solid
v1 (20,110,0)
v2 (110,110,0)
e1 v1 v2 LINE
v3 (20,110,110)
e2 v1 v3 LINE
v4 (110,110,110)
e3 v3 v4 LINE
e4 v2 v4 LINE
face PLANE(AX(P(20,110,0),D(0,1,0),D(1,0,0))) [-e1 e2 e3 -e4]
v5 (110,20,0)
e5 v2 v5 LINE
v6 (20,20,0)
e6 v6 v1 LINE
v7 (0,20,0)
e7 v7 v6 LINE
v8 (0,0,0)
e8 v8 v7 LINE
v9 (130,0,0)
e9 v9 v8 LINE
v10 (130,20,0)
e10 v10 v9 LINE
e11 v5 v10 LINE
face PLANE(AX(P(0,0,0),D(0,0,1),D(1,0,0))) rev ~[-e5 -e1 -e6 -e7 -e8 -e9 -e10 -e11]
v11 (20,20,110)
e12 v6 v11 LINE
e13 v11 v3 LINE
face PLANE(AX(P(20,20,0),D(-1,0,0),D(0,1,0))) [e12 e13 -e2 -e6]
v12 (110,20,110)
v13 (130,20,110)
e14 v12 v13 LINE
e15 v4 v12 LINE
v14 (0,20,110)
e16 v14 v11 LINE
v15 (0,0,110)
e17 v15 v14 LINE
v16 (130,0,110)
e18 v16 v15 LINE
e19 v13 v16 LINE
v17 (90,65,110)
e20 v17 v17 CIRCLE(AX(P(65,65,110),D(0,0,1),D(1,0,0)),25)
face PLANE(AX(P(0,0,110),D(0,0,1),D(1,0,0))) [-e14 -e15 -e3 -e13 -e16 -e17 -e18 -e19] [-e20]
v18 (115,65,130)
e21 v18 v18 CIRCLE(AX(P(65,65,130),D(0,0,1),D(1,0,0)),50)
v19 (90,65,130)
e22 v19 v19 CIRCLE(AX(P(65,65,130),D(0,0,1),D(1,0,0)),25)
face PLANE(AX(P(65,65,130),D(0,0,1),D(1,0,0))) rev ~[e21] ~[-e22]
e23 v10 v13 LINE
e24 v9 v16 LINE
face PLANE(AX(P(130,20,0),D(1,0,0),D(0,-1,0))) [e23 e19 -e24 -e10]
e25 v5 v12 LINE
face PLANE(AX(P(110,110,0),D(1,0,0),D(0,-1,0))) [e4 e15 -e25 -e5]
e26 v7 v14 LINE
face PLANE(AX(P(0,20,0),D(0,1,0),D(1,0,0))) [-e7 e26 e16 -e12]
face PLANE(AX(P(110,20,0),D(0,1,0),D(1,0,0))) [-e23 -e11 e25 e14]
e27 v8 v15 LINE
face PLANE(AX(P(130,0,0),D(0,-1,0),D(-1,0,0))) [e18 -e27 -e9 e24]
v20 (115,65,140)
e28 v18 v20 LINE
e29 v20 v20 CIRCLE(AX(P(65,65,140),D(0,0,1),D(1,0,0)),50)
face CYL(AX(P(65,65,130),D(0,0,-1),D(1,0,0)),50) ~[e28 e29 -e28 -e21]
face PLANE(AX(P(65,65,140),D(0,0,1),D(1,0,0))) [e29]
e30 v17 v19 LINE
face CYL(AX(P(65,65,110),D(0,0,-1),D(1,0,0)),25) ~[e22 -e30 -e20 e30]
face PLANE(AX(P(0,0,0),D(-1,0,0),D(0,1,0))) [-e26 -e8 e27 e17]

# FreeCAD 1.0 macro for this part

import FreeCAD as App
import Part
import Sketcher
Q = App.Units.Quantity

doc = App.newDocument("Part")
body = doc.addObject("PartDesign::Body", "Body")

# Sketch on XY plane
sketch1 = body.newObject("Sketcher::SketchObject", "Sketch")
sketch1.AttachmentSupport = (doc.getObject("XY_Plane"), [""])
sketch1.MapMode = "FlatFace"
sketch1.addGeometry([
    Part.LineSegment(App.Vector(0, 20, 0), App.Vector(0, 0, 0)),  # 0
    Part.LineSegment(App.Vector(0, 0, 0), App.Vector(130, 0, 0)),  # 1
    Part.LineSegment(App.Vector(130, 0, 0), App.Vector(130, 20, 0)),  # 2
    Part.LineSegment(App.Vector(130, 20, 0), App.Vector(110, 20, 0)),  # 3
    Part.LineSegment(App.Vector(110, 20, 0), App.Vector(110, 110, 0)),  # 4
    Part.LineSegment(App.Vector(110, 110, 0), App.Vector(20, 110, 0)),  # 5
    Part.LineSegment(App.Vector(20, 110, 0), App.Vector(20, 20, 0)),  # 6
    Part.LineSegment(App.Vector(20, 20, 0), App.Vector(0, 20, 0)),  # 7
], False)
sketch1.addConstraint([
    Sketcher.Constraint("Coincident", 0, 2, 1, 1),
    Sketcher.Constraint("Coincident", 1, 2, 2, 1),
    Sketcher.Constraint("Coincident", 2, 2, 3, 1),
    Sketcher.Constraint("Coincident", 3, 2, 4, 1),
    Sketcher.Constraint("Coincident", 4, 2, 5, 1),
    Sketcher.Constraint("Coincident", 5, 2, 6, 1),
    Sketcher.Constraint("Coincident", 6, 2, 7, 1),
    Sketcher.Constraint("Coincident", 7, 2, 0, 1),
    Sketcher.Constraint("Vertical", 0),
    Sketcher.Constraint("Horizontal", 1),
    Sketcher.Constraint("Vertical", 2),
    Sketcher.Constraint("Horizontal", 3),
    Sketcher.Constraint("Vertical", 4),
    Sketcher.Constraint("Horizontal", 5),
    Sketcher.Constraint("Vertical", 6),
    Sketcher.Constraint("Horizontal", 7),
    Sketcher.Constraint("Coincident", 0, 2, -1, 1),
    Sketcher.Constraint("Horizontal", 3, 2, 6, 2),
    Sketcher.Constraint("Equal", 3, 7),
    Sketcher.Constraint("Equal", 7, 0),
    Sketcher.Constraint("Equal", 5, 4),
    Sketcher.Constraint("DistanceX", 1, 1, 1, 2, Q("5.1181 in")),
    Sketcher.Constraint("DistanceX", 3, 2, 3, 1, Q("0.7874 in")),
])
pad1 = body.newObject("PartDesign::Pad", "Pad")
pad1.Profile = sketch1
pad1.Length = Q("4.3307087 in")

# Sketch on XY plane
sketch2 = body.newObject("Sketcher::SketchObject", "Sketch001")
sketch2.AttachmentSupport = (doc.getObject("XY_Plane"), [""])
sketch2.MapMode = "FlatFace"
sketch2.AttachmentOffset = App.Placement(App.Vector(0, 0, 4.3307087 * 25.4), App.Rotation())
sketch2.addGeometry(Part.Circle(App.Vector(65, 65, 0), App.Vector(0, 0, 1), 25), False)
sketch2.addConstraint([
    Sketcher.Constraint("Diameter", 0, Q("1.9685 in")),
    Sketcher.Constraint("DistanceX", -1, 1, 0, 3, 65.0),
    Sketcher.Constraint("DistanceY", -1, 1, 0, 3, 65.0),
])
pad2 = body.newObject("PartDesign::Pad", "Pad001")
pad2.Profile = sketch2
pad2.Length = Q("0.7874016 in")

# Sketch on XY plane
sketch3 = body.newObject("Sketcher::SketchObject", "Sketch002")
sketch3.AttachmentSupport = (doc.getObject("XY_Plane"), [""])
sketch3.MapMode = "FlatFace"
sketch3.AttachmentOffset = App.Placement(App.Vector(0, 0, 5.1181102 * 25.4), App.Rotation())
sketch3.addGeometry(Part.Circle(App.Vector(65, 65, 0), App.Vector(0, 0, 1), 50), False)
sketch3.addConstraint([
    Sketcher.Constraint("Diameter", 0, Q("3.937 in")),
    Sketcher.Constraint("DistanceX", -1, 1, 0, 3, 65.0),
    Sketcher.Constraint("DistanceY", -1, 1, 0, 3, 65.0),
])
pad3 = body.newObject("PartDesign::Pad", "Pad002")
pad3.Profile = sketch3
pad3.Length = Q("0.3937008 in")

doc.recompute()
